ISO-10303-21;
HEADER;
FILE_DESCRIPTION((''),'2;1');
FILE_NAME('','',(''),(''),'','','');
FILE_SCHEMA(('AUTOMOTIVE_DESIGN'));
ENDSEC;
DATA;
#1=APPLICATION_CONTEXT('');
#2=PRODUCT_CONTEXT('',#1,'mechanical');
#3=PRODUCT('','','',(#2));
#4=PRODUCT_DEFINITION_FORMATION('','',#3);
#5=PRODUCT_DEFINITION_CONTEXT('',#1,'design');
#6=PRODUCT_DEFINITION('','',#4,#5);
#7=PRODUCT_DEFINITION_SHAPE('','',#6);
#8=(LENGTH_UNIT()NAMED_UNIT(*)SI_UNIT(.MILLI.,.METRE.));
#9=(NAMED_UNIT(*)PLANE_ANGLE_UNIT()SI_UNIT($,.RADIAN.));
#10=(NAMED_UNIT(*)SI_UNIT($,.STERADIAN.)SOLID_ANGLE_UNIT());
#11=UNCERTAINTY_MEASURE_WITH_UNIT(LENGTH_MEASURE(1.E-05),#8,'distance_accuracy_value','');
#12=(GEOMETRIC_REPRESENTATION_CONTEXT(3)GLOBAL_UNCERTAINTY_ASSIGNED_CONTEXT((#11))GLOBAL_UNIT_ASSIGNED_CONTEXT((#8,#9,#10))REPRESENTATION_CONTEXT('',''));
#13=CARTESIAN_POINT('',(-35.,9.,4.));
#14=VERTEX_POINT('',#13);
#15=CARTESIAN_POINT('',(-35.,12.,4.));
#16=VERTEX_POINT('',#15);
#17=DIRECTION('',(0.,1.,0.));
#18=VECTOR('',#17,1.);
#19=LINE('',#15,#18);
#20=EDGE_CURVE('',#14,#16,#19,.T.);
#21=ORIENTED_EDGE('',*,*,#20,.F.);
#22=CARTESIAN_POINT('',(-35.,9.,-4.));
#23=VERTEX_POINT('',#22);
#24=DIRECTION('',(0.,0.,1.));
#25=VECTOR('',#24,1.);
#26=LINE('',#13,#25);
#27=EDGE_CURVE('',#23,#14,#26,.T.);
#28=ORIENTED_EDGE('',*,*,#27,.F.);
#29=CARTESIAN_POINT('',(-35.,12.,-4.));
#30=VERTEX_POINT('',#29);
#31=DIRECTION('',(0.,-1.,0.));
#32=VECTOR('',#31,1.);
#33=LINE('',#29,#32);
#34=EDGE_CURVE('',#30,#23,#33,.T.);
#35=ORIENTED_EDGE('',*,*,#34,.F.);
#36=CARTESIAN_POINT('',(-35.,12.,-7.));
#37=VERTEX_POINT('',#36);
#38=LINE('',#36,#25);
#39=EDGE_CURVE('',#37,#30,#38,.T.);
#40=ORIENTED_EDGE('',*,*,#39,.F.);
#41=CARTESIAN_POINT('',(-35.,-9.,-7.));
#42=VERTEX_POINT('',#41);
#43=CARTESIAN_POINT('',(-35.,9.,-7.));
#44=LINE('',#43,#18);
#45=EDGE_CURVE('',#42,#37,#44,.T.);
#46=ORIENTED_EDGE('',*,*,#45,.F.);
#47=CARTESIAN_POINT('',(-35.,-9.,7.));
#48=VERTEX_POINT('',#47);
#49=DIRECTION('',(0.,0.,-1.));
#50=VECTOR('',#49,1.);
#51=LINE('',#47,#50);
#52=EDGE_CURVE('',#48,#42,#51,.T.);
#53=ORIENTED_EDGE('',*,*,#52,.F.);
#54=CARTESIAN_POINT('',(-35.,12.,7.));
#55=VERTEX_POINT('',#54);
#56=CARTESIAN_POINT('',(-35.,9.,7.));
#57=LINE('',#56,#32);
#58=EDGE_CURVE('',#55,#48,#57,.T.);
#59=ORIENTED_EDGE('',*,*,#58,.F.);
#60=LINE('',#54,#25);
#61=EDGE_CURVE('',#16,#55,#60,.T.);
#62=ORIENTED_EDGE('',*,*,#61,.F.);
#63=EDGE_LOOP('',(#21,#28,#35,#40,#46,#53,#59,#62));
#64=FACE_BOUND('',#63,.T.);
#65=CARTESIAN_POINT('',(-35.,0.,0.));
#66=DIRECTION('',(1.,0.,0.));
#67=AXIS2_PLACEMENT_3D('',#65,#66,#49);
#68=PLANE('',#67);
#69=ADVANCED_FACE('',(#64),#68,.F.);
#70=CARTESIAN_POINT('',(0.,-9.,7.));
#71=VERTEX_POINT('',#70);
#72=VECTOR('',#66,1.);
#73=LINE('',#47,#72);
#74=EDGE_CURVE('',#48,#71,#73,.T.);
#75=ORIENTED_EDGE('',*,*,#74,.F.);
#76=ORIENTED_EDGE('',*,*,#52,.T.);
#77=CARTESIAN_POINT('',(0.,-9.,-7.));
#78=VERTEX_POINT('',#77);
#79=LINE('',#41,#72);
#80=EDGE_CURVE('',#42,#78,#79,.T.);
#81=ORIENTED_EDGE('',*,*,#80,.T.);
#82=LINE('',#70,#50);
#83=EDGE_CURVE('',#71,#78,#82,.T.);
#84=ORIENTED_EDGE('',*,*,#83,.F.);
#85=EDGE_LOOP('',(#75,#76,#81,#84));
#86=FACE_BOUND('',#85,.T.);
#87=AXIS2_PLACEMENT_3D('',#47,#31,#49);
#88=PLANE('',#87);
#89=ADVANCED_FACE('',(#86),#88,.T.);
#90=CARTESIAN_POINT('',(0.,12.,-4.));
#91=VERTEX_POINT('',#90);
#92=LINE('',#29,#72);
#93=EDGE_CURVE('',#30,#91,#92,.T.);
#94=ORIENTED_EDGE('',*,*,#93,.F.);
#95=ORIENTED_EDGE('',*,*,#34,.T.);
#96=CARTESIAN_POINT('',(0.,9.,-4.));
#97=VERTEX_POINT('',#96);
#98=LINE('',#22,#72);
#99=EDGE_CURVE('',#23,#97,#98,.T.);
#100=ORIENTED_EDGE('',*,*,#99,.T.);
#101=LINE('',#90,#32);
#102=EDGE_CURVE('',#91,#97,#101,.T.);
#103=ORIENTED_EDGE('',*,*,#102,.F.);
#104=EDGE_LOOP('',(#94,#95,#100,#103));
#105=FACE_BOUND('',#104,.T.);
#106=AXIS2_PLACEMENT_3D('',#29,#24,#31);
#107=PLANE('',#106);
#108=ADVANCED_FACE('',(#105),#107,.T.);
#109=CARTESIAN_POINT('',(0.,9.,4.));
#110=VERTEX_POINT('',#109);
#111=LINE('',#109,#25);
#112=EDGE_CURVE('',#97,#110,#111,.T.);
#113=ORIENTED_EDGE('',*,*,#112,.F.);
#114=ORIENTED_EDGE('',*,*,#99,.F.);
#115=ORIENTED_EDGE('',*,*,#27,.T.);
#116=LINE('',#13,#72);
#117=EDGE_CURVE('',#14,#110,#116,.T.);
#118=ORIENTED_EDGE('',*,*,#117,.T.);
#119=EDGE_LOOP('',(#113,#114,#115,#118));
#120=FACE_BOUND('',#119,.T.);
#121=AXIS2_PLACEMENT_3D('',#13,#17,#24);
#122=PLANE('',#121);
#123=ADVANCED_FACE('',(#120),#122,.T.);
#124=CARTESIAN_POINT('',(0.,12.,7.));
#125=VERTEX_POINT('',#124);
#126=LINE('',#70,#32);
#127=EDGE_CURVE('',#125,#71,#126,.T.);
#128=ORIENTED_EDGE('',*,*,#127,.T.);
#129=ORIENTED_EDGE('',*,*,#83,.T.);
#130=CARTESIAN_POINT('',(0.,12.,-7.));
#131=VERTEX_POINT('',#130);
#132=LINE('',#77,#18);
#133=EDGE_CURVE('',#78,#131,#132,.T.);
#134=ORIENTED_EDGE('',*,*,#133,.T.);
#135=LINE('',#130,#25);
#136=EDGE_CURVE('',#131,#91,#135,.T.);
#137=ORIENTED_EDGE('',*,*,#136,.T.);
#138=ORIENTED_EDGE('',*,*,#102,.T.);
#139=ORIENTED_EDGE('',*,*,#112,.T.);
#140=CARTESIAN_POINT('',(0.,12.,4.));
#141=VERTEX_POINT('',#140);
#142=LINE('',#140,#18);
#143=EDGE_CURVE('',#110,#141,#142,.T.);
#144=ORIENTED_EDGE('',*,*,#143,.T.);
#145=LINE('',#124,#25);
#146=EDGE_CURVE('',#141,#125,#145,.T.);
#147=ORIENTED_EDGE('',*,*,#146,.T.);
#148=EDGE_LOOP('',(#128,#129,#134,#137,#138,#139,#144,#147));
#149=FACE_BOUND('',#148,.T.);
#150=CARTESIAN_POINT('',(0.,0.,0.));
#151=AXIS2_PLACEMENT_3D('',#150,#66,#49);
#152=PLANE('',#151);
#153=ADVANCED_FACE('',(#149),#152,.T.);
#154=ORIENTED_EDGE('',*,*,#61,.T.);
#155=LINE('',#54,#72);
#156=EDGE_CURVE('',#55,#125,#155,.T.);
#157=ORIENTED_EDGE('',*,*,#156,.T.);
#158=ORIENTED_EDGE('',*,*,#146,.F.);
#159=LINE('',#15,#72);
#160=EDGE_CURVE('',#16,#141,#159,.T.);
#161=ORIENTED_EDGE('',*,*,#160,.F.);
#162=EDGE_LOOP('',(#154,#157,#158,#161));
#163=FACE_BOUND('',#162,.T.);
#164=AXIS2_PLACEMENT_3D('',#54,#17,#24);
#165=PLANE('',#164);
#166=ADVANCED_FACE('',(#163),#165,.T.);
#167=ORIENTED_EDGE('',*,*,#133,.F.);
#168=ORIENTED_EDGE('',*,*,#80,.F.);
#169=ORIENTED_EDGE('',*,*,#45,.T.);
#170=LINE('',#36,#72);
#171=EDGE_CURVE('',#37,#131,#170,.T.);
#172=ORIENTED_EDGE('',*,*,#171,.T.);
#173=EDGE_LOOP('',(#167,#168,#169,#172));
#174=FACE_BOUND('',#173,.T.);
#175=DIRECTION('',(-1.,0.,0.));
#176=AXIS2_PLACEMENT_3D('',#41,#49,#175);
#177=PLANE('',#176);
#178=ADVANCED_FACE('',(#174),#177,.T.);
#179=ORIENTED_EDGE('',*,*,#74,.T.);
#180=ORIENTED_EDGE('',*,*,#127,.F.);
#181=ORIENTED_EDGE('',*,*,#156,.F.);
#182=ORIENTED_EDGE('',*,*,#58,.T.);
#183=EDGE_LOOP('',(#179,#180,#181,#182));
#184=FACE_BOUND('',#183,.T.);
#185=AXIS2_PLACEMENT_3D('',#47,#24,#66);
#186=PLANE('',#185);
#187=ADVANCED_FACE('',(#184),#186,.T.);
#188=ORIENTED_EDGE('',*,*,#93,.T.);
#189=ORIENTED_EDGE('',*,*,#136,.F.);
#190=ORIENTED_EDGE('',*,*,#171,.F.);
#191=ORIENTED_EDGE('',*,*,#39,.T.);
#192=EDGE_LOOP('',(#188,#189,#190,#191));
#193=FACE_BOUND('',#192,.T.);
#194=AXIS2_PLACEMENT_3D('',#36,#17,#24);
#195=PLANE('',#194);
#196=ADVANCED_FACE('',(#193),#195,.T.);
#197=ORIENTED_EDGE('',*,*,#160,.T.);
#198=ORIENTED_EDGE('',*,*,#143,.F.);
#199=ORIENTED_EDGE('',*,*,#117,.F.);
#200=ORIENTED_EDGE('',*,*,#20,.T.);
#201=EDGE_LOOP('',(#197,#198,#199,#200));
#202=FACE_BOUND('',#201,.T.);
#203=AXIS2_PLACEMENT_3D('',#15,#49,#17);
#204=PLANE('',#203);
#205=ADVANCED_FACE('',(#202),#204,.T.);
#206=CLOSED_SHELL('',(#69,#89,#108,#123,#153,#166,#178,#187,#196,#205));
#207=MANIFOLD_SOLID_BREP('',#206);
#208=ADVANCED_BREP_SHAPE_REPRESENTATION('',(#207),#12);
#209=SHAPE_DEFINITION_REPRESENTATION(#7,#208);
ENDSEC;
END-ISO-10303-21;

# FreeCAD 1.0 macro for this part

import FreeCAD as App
import Part
import Sketcher


def add_polygon(sketch, points):
    """Adds a closed chain of lines whose ends are joined by coincident constraints."""
    first, n = sketch.GeometryCount, len(points)
    for a, b in zip(points, points[1:] + points[:1]):
        sketch.addGeometry(Part.LineSegment(App.Vector(*a, 0), App.Vector(*b, 0)), False)
    for i in range(n):
        sketch.addConstraint(Sketcher.Constraint("Coincident", first + i, 2, first + (i + 1) % n, 1))

doc = App.newDocument("Part")
body = doc.addObject("PartDesign::Body", "Body")

# Sketch on YZ plane
sketch1 = body.newObject("Sketcher::SketchObject", "Sketch")
sketch1.AttachmentSupport = (doc.getObject("YZ_Plane"), [""])
sketch1.MapMode = "FlatFace"
add_polygon(sketch1, [(12, 7), (-9, 7), (-9, -7), (12, -7), (12, -4), (9, -4), (9, 4), (12, 4)])  # lines 0-7
sketch1.addConstraint([
    Sketcher.Constraint("Horizontal", 0),
    Sketcher.Constraint("Vertical", 1),
    Sketcher.Constraint("Horizontal", 2),
    Sketcher.Constraint("Vertical", 3),
    Sketcher.Constraint("Horizontal", 4),
    Sketcher.Constraint("Vertical", 5),
    Sketcher.Constraint("Horizontal", 6),
    Sketcher.Constraint("Vertical", 7),
    Sketcher.Constraint("Symmetric", 3, 2, 6, 2, -1),
    Sketcher.Constraint("Equal", 6, 3),
    Sketcher.Constraint("Equal", 3, 7),
    Sketcher.Constraint("DistanceX", 0, 2, 0, 1, 21.0),
    Sketcher.Constraint("DistanceX", 4, 2, 4, 1, 3.0),
    Sketcher.Constraint("DistanceY", 1, 2, 1, 1, 14.0),
    Sketcher.Constraint("DistanceX", 0, 2, -1, 1, 9.0),
])
pad1 = body.newObject("PartDesign::Pad", "Pad")
pad1.Profile = sketch1
pad1.Length = 35
pad1.Reversed = True

doc.recompute()
